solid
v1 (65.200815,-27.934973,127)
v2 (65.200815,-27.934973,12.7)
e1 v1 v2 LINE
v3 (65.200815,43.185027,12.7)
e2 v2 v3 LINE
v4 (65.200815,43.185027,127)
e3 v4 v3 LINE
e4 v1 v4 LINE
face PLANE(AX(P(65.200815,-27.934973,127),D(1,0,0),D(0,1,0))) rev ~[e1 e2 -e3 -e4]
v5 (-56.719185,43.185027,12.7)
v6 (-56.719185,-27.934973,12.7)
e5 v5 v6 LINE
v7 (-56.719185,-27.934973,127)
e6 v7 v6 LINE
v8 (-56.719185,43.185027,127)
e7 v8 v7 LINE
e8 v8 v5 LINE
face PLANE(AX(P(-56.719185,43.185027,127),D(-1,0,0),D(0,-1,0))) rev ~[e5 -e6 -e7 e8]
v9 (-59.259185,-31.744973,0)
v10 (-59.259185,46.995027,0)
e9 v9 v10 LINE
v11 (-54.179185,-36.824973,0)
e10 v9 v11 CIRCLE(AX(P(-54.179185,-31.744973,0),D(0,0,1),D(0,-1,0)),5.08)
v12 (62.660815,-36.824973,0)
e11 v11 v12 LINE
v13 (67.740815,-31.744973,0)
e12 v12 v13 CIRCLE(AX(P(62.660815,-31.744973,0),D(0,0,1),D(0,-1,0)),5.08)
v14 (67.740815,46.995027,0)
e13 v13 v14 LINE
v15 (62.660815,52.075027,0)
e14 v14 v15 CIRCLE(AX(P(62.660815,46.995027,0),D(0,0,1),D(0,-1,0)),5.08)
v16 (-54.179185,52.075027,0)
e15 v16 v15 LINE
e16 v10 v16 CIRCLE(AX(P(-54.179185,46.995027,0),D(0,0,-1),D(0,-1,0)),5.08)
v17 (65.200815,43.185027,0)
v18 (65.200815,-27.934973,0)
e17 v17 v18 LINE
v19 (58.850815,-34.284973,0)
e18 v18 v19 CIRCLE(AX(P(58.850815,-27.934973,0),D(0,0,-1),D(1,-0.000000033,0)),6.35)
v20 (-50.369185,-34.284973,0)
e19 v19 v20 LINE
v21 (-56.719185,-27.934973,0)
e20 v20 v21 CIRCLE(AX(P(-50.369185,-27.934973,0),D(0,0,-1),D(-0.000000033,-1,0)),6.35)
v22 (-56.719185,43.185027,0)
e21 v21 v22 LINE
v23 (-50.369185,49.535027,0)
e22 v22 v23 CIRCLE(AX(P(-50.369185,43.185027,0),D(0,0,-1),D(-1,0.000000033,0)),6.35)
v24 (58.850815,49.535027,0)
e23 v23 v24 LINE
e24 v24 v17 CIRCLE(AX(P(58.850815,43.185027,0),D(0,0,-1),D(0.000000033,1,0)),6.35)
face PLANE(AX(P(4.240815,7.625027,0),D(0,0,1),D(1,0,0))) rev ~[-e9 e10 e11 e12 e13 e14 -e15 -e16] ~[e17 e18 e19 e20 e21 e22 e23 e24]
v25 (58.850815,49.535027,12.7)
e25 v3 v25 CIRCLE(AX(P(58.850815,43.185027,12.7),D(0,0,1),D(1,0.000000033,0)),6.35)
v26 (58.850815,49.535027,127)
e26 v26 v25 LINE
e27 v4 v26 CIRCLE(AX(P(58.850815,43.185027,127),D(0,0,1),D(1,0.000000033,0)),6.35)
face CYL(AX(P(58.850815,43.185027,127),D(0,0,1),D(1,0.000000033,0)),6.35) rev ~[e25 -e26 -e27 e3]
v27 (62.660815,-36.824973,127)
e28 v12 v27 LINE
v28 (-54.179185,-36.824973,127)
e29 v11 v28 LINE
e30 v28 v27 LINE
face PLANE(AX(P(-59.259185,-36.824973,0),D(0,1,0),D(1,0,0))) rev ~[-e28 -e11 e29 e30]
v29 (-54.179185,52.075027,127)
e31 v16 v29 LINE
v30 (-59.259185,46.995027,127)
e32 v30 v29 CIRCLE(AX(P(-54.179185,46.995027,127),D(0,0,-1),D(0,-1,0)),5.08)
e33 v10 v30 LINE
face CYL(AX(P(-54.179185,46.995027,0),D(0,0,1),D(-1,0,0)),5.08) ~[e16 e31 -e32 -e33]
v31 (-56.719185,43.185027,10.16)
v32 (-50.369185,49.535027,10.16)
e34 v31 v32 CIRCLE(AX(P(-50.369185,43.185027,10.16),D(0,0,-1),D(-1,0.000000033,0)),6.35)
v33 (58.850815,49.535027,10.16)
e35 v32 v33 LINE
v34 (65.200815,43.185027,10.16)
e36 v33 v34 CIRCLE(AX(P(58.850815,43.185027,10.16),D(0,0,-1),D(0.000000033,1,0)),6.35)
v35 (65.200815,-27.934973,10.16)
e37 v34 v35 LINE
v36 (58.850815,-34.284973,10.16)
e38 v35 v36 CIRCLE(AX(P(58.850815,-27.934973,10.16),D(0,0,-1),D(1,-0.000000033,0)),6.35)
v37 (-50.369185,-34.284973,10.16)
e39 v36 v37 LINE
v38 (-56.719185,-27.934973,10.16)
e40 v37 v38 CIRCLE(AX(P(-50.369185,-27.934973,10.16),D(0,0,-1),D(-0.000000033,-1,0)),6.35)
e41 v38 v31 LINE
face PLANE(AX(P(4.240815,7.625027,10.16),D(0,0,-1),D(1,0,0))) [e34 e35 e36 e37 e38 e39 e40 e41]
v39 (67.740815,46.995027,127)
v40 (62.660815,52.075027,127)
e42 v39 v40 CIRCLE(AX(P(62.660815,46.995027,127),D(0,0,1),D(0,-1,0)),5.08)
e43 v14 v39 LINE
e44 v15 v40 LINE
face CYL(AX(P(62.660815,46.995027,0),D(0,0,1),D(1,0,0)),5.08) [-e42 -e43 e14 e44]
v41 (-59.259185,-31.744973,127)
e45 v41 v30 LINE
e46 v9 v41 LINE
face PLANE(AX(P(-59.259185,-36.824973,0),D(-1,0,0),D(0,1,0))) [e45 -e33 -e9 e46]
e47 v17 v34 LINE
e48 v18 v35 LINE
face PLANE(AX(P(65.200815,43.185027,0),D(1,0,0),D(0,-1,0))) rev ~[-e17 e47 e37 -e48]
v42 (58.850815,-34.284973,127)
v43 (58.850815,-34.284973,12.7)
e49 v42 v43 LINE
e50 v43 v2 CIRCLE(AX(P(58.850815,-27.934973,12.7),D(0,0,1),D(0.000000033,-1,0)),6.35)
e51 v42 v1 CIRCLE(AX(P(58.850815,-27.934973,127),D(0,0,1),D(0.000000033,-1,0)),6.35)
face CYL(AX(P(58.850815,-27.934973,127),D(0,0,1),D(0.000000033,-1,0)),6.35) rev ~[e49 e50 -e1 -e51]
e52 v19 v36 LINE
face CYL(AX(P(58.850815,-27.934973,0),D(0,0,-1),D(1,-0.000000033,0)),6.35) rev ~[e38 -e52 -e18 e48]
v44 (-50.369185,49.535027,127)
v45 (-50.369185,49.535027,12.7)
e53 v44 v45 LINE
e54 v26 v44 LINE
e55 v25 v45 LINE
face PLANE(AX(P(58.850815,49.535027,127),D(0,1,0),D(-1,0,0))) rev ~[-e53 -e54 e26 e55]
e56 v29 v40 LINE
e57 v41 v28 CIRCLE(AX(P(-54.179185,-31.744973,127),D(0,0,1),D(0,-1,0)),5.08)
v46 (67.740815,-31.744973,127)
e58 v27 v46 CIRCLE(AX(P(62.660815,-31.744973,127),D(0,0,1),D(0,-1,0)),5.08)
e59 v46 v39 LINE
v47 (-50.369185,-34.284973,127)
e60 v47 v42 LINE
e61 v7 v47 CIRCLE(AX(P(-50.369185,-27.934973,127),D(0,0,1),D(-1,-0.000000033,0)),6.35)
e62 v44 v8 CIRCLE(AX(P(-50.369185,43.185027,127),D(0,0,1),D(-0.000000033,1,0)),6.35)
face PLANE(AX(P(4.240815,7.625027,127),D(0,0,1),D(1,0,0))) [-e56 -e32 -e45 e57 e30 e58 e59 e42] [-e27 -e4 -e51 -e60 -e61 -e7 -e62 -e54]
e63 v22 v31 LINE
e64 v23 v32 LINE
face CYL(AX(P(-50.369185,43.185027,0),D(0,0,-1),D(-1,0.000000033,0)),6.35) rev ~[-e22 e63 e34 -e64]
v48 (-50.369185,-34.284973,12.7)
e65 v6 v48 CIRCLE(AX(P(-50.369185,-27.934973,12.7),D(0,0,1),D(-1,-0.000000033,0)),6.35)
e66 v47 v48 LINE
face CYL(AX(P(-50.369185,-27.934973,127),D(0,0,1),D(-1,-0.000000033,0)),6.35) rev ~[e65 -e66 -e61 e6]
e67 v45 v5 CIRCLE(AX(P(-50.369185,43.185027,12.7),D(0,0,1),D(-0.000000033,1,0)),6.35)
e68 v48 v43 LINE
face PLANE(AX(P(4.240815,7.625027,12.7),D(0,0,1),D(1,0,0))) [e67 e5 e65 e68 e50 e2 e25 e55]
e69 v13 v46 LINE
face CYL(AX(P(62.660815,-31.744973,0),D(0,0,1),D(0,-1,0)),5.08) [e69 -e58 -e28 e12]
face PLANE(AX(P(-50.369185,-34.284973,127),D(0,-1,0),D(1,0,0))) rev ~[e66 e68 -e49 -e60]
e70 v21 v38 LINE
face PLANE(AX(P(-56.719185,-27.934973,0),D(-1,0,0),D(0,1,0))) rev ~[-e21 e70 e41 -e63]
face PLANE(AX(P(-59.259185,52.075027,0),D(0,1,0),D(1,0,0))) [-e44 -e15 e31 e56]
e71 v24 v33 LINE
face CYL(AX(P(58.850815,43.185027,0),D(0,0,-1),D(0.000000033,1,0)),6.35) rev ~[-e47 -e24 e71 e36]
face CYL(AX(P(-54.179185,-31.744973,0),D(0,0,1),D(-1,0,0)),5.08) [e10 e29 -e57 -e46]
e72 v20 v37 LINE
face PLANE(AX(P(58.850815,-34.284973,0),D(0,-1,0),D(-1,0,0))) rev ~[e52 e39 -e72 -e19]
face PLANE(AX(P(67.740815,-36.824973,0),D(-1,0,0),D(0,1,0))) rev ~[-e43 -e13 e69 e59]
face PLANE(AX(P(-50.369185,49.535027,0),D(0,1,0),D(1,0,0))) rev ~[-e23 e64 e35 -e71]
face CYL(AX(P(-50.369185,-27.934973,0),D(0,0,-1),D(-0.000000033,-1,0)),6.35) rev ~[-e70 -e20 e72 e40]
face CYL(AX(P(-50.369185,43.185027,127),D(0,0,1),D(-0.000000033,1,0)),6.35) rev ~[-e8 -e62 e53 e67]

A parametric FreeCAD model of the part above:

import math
import FreeCAD as App
import Part
import Sketcher
Q = App.Units.Quantity


def edges_at(feature, points):
    """Names of the edges that pass closest to the given points."""
    edges = feature.Shape.Edges
    near = lambda p: min(range(len(edges)), key=lambda i: edges[i].distToShape(Part.Vertex(*p))[0])
    return sorted({f"Edge{near(p) + 1}" for p in points})


def add_polygon(sketch, points):
    """Adds a closed chain of lines whose ends are joined by coincident constraints."""
    first, n = sketch.GeometryCount, len(points)
    for a, b in zip(points, points[1:] + points[:1]):
        sketch.addGeometry(Part.LineSegment(App.Vector(*a, 0), App.Vector(*b, 0)), False)
    for i in range(n):
        sketch.addConstraint(Sketcher.Constraint("Coincident", first + i, 2, first + (i + 1) % n, 1))

doc = App.newDocument("Part")
body = doc.addObject("PartDesign::Body", "Body")

# Sketch on XY plane
sketch1 = body.newObject("Sketcher::SketchObject", "Sketch")
sketch1.AttachmentSupport = (doc.getObject("XY_Plane"), [""])
sketch1.MapMode = "FlatFace"
add_polygon(sketch1, [(-59, 52), (-59, -37), (68, -37), (68, 52)])  # lines 0-3
sketch1.addConstraint([
    Sketcher.Constraint("Vertical", 0),
    Sketcher.Constraint("Horizontal", 1),
    Sketcher.Constraint("Vertical", 2),
    Sketcher.Constraint("Horizontal", 3),
    Sketcher.Constraint("DistanceX", 1, 1, 1, 2, Q("5 in")),
    Sketcher.Constraint("DistanceY", 0, 2, 0, 1, Q("3.5 in")),
    Sketcher.Constraint("DistanceX", 0, 2, -1, 1, 59.259185),
    Sketcher.Constraint("DistanceY", 0, 2, -1, 1, 36.824973),
])
pad1 = body.newObject("PartDesign::Pad", "Pad")
pad1.Profile = sketch1
pad1.Length = Q("5 in")
doc.recompute()

fillet = body.newObject("PartDesign::Fillet", "Fillet")
fillet.Base = (pad1, edges_at(pad1, [
    (-59.259, -36.825, 63.5),
    (67.741, -36.825, 63.5),
    (67.741, 52.075, 63.5),
    (-59.259, 52.075, 63.5),
]))
fillet.Radius = Q("0.2 in")

# Sketch on XY plane
sketch2 = body.newObject("Sketcher::SketchObject", "Sketch001")
sketch2.AttachmentSupport = (doc.getObject("XY_Plane"), [""])
sketch2.MapMode = "FlatFace"
sketch2.AttachmentOffset = App.Placement(App.Vector(0, 0, 5 * 25.4), App.Rotation())
sketch2.addGeometry([
    Part.LineSegment(App.Vector(59, 50, 0), App.Vector(-50, 50, 0)),  # 0
    Part.ArcOfCircle(Part.Circle(App.Vector(-50, 43, 0), App.Vector(0, 0, 1), 6), math.radians(90), math.radians(180)),  # 1
    Part.LineSegment(App.Vector(-57, 43, 0), App.Vector(-57, -28, 0)),  # 2
    Part.ArcOfCircle(Part.Circle(App.Vector(-50, -28, 0), App.Vector(0, 0, 1), 6), math.radians(-180), math.radians(-90)),  # 3
    Part.LineSegment(App.Vector(-50, -34, 0), App.Vector(59, -34, 0)),  # 4
    Part.ArcOfCircle(Part.Circle(App.Vector(59, -28, 0), App.Vector(0, 0, 1), 6), math.radians(-90), math.radians(0)),  # 5
    Part.LineSegment(App.Vector(65, -28, 0), App.Vector(65, 43, 0)),  # 6
    Part.ArcOfCircle(Part.Circle(App.Vector(59, 43, 0), App.Vector(0, 0, 1), 6), math.radians(0), math.radians(90)),  # 7
], False)
sketch2.addConstraint([
    Sketcher.Constraint("Tangent", 0, 2, 1, 1),
    Sketcher.Constraint("Tangent", 1, 2, 2, 1),
    Sketcher.Constraint("Tangent", 2, 2, 3, 1),
    Sketcher.Constraint("Tangent", 3, 2, 4, 1),
    Sketcher.Constraint("Tangent", 4, 2, 5, 1),
    Sketcher.Constraint("Tangent", 5, 2, 6, 1),
    Sketcher.Constraint("Tangent", 6, 2, 7, 1),
    Sketcher.Constraint("Tangent", 7, 2, 0, 1),
    Sketcher.Constraint("Horizontal", 0),
    Sketcher.Constraint("Vertical", 2),
    Sketcher.Constraint("Horizontal", 4),
    Sketcher.Constraint("Vertical", 6),
    Sketcher.Constraint("Equal", 1, 3),
    Sketcher.Constraint("Equal", 3, 5),
    Sketcher.Constraint("Equal", 5, 7),
    Sketcher.Constraint("Radius", 1, Q("0.25 in")),
    Sketcher.Constraint("DistanceX", 0, 2, 0, 1, Q("4.3 in")),
    Sketcher.Constraint("DistanceY", 2, 2, 2, 1, Q("2.8 in")),
    Sketcher.Constraint("DistanceX", 1, 3, -1, 1, 50.369185),
    Sketcher.Constraint("DistanceY", -1, 1, 1, 3, 43.185027),
])
pocket1 = body.newObject("PartDesign::Pocket", "Pocket")
pocket1.Profile = sketch2
pocket1.Length = Q("4.5 in")

# Sketch on XY plane
sketch3 = body.newObject("Sketcher::SketchObject", "Sketch002")
sketch3.AttachmentSupport = (doc.getObject("XY_Plane"), [""])
sketch3.MapMode = "FlatFace"
sketch3.addGeometry([
    Part.ArcOfCircle(Part.Circle(App.Vector(59, 43, 0), App.Vector(0, 0, 1), 6), math.radians(0), math.radians(90)),  # 0
    Part.LineSegment(App.Vector(65, 43, 0), App.Vector(65, -28, 0)),  # 1
    Part.ArcOfCircle(Part.Circle(App.Vector(59, -28, 0), App.Vector(0, 0, 1), 6), math.radians(-90), math.radians(0)),  # 2
    Part.LineSegment(App.Vector(59, -34, 0), App.Vector(-50, -34, 0)),  # 3
    Part.ArcOfCircle(Part.Circle(App.Vector(-50, -28, 0), App.Vector(0, 0, 1), 6), math.radians(-180), math.radians(-90)),  # 4
    Part.LineSegment(App.Vector(-57, -28, 0), App.Vector(-57, 43, 0)),  # 5
    Part.ArcOfCircle(Part.Circle(App.Vector(-50, 43, 0), App.Vector(0, 0, 1), 6), math.radians(90), math.radians(180)),  # 6
    Part.LineSegment(App.Vector(-50, 50, 0), App.Vector(59, 50, 0)),  # 7
], False)
sketch3.addConstraint([
    Sketcher.Constraint("Tangent", 0, 1, 1, 1),
    Sketcher.Constraint("Tangent", 1, 2, 2, 2),
    Sketcher.Constraint("Tangent", 2, 1, 3, 1),
    Sketcher.Constraint("Tangent", 3, 2, 4, 2),
    Sketcher.Constraint("Tangent", 4, 1, 5, 1),
    Sketcher.Constraint("Tangent", 5, 2, 6, 2),
    Sketcher.Constraint("Tangent", 6, 1, 7, 1),
    Sketcher.Constraint("Tangent", 7, 2, 0, 2),
    Sketcher.Constraint("Vertical", 1),
    Sketcher.Constraint("Horizontal", 3),
    Sketcher.Constraint("Vertical", 5),
    Sketcher.Constraint("Horizontal", 7),
    Sketcher.Constraint("Equal", 0, 2),
    Sketcher.Constraint("Equal", 2, 4),
    Sketcher.Constraint("Equal", 4, 6),
    Sketcher.Constraint("Radius", 0, Q("0.25 in")),
    Sketcher.Constraint("DistanceX", 3, 2, 3, 1, Q("4.3 in")),
    Sketcher.Constraint("DistanceY", 1, 2, 1, 1, Q("2.8 in")),
    Sketcher.Constraint("DistanceX", -1, 1, 0, 3, 58.850815),
    Sketcher.Constraint("DistanceY", -1, 1, 0, 3, 43.185027),
])
pocket2 = body.newObject("PartDesign::Pocket", "Pocket001")
pocket2.Profile = sketch3
pocket2.Length = Q("0.4 in")
pocket2.Reversed = True

doc.recompute()
